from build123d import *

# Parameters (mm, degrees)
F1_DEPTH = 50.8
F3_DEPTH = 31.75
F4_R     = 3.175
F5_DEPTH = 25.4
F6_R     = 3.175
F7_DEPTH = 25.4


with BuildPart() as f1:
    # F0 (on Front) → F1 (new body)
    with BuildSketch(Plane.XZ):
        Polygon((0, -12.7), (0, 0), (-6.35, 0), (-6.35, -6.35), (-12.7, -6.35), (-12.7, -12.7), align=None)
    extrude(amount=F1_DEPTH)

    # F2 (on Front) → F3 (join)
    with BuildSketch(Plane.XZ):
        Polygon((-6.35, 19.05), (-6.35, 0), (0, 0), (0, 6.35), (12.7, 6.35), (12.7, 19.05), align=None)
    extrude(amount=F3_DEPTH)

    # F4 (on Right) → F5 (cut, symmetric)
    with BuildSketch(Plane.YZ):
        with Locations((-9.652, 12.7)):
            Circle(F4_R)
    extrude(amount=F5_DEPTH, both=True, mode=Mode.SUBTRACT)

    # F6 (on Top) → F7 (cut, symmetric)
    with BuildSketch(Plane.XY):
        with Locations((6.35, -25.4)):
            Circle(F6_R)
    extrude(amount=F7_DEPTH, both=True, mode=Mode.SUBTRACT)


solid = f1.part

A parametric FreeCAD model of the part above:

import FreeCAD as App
import Part
import Sketcher

V = App.Vector
Q = App.Units.Quantity


def add_polygon(sketch, points):
    """Adds a closed chain of lines whose ends are joined by coincident constraints."""
    first, n = sketch.GeometryCount, len(points)
    for a, b in zip(points, points[1:] + points[:1]):
        sketch.addGeometry(Part.LineSegment(App.Vector(*a, 0), App.Vector(*b, 0)), False)
    for i in range(n):
        sketch.addConstraint(Sketcher.Constraint("Coincident", first + i, 2, first + (i + 1) % n, 1))

doc = App.newDocument("Part")
body = doc.addObject("PartDesign::Body", "Body")

sketch1 = body.newObject("Sketcher::SketchObject", "Sketch")
sketch1.AttachmentSupport = (doc.getObject("XZ_Plane"), [""])
sketch1.MapMode = "FlatFace"
add_polygon(sketch1, [(0, -13), (0, 0), (-6, 0), (-6, -6), (-13, -6), (-13, -13)])
sketch1.addConstraint(Sketcher.Constraint("Vertical", 0))
sketch1.addConstraint(Sketcher.Constraint("Horizontal", 1))
sketch1.addConstraint(Sketcher.Constraint("Vertical", 2))
sketch1.addConstraint(Sketcher.Constraint("Horizontal", 3))
sketch1.addConstraint(Sketcher.Constraint("Vertical", 4))
sketch1.addConstraint(Sketcher.Constraint("Horizontal", 5))
sketch1.addConstraint(Sketcher.Constraint("Coincident", 0, 2, -1, 1))
sketch1.addConstraint(Sketcher.Constraint("Equal", 1, 3))
sketch1.addConstraint(Sketcher.Constraint("Equal", 5, 0))
sketch1.addConstraint(Sketcher.Constraint("Equal", 3, 2))
sketch1.addConstraint(Sketcher.Constraint("DistanceX", 5, 1, 5, 2, Q("0.5 in")))
pad1 = body.newObject("PartDesign::Pad", "Pad")
pad1.Profile = sketch1
pad1.Length = Q("2 in")

sketch2 = body.newObject("Sketcher::SketchObject", "Sketch001")
sketch2.AttachmentSupport = (doc.getObject("XZ_Plane"), [""])
sketch2.MapMode = "FlatFace"
add_polygon(sketch2, [(-6, 19), (-6, 0), (0, 0), (0, 6), (13, 6), (13, 19)])
sketch2.addConstraint(Sketcher.Constraint("Vertical", 0))
sketch2.addConstraint(Sketcher.Constraint("Horizontal", 1))
sketch2.addConstraint(Sketcher.Constraint("Vertical", 2))
sketch2.addConstraint(Sketcher.Constraint("Horizontal", 3))
sketch2.addConstraint(Sketcher.Constraint("Vertical", 4))
sketch2.addConstraint(Sketcher.Constraint("Horizontal", 5))
sketch2.addConstraint(Sketcher.Constraint("Coincident", 1, 2, -1, 1))
sketch2.addConstraint(Sketcher.Constraint("Equal", 5, 0))
sketch2.addConstraint(Sketcher.Constraint("Equal", 1, 2))
sketch2.addConstraint(Sketcher.Constraint("DistanceX", 3, 1, 3, 2, Q("0.5 in")))
sketch2.addConstraint(Sketcher.Constraint("DistanceX", 1, 1, 1, 2, Q("0.25 in")))
pad2 = body.newObject("PartDesign::Pad", "Pad001")
pad2.Profile = sketch2
pad2.Length = Q("1.25 in")

sketch3 = body.newObject("Sketcher::SketchObject", "Sketch002")
sketch3.AttachmentSupport = (doc.getObject("YZ_Plane"), [""])
sketch3.MapMode = "FlatFace"
sketch3.addGeometry(Part.Circle(V(-9.7, 12.7, 0), V(0, 0, 1), 3.2), False)
sketch3.addConstraint(Sketcher.Constraint("Diameter", 0, Q("0.25 in")))
sketch3.addConstraint(Sketcher.Constraint("DistanceY", -1, 1, 0, 3, Q("0.5 in")))
sketch3.addConstraint(Sketcher.Constraint("DistanceX", 0, 3, -1, 1, Q("0.38 in")))
pocket1 = body.newObject("PartDesign::Pocket", "Pocket")
pocket1.Profile = sketch3
pocket1.Length = Q("2 in")
pocket1.Midplane = True

sketch4 = body.newObject("Sketcher::SketchObject", "Sketch003")
sketch4.AttachmentSupport = (doc.getObject("XY_Plane"), [""])
sketch4.MapMode = "FlatFace"
sketch4.addGeometry(Part.Circle(V(6.3, -25.4, 0), V(0, 0, 1), 3.2), False)
sketch4.addConstraint(Sketcher.Constraint("Diameter", 0, Q("0.25 in")))
sketch4.addConstraint(Sketcher.Constraint("DistanceY", 0, 3, -1, 1, Q("1 in")))
sketch4.addConstraint(Sketcher.Constraint("DistanceX", -1, 1, 0, 3, Q("0.25 in")))
pocket2 = body.newObject("PartDesign::Pocket", "Pocket001")
pocket2.Profile = sketch4
pocket2.Length = Q("2 in")
pocket2.Midplane = True

doc.recompute()
